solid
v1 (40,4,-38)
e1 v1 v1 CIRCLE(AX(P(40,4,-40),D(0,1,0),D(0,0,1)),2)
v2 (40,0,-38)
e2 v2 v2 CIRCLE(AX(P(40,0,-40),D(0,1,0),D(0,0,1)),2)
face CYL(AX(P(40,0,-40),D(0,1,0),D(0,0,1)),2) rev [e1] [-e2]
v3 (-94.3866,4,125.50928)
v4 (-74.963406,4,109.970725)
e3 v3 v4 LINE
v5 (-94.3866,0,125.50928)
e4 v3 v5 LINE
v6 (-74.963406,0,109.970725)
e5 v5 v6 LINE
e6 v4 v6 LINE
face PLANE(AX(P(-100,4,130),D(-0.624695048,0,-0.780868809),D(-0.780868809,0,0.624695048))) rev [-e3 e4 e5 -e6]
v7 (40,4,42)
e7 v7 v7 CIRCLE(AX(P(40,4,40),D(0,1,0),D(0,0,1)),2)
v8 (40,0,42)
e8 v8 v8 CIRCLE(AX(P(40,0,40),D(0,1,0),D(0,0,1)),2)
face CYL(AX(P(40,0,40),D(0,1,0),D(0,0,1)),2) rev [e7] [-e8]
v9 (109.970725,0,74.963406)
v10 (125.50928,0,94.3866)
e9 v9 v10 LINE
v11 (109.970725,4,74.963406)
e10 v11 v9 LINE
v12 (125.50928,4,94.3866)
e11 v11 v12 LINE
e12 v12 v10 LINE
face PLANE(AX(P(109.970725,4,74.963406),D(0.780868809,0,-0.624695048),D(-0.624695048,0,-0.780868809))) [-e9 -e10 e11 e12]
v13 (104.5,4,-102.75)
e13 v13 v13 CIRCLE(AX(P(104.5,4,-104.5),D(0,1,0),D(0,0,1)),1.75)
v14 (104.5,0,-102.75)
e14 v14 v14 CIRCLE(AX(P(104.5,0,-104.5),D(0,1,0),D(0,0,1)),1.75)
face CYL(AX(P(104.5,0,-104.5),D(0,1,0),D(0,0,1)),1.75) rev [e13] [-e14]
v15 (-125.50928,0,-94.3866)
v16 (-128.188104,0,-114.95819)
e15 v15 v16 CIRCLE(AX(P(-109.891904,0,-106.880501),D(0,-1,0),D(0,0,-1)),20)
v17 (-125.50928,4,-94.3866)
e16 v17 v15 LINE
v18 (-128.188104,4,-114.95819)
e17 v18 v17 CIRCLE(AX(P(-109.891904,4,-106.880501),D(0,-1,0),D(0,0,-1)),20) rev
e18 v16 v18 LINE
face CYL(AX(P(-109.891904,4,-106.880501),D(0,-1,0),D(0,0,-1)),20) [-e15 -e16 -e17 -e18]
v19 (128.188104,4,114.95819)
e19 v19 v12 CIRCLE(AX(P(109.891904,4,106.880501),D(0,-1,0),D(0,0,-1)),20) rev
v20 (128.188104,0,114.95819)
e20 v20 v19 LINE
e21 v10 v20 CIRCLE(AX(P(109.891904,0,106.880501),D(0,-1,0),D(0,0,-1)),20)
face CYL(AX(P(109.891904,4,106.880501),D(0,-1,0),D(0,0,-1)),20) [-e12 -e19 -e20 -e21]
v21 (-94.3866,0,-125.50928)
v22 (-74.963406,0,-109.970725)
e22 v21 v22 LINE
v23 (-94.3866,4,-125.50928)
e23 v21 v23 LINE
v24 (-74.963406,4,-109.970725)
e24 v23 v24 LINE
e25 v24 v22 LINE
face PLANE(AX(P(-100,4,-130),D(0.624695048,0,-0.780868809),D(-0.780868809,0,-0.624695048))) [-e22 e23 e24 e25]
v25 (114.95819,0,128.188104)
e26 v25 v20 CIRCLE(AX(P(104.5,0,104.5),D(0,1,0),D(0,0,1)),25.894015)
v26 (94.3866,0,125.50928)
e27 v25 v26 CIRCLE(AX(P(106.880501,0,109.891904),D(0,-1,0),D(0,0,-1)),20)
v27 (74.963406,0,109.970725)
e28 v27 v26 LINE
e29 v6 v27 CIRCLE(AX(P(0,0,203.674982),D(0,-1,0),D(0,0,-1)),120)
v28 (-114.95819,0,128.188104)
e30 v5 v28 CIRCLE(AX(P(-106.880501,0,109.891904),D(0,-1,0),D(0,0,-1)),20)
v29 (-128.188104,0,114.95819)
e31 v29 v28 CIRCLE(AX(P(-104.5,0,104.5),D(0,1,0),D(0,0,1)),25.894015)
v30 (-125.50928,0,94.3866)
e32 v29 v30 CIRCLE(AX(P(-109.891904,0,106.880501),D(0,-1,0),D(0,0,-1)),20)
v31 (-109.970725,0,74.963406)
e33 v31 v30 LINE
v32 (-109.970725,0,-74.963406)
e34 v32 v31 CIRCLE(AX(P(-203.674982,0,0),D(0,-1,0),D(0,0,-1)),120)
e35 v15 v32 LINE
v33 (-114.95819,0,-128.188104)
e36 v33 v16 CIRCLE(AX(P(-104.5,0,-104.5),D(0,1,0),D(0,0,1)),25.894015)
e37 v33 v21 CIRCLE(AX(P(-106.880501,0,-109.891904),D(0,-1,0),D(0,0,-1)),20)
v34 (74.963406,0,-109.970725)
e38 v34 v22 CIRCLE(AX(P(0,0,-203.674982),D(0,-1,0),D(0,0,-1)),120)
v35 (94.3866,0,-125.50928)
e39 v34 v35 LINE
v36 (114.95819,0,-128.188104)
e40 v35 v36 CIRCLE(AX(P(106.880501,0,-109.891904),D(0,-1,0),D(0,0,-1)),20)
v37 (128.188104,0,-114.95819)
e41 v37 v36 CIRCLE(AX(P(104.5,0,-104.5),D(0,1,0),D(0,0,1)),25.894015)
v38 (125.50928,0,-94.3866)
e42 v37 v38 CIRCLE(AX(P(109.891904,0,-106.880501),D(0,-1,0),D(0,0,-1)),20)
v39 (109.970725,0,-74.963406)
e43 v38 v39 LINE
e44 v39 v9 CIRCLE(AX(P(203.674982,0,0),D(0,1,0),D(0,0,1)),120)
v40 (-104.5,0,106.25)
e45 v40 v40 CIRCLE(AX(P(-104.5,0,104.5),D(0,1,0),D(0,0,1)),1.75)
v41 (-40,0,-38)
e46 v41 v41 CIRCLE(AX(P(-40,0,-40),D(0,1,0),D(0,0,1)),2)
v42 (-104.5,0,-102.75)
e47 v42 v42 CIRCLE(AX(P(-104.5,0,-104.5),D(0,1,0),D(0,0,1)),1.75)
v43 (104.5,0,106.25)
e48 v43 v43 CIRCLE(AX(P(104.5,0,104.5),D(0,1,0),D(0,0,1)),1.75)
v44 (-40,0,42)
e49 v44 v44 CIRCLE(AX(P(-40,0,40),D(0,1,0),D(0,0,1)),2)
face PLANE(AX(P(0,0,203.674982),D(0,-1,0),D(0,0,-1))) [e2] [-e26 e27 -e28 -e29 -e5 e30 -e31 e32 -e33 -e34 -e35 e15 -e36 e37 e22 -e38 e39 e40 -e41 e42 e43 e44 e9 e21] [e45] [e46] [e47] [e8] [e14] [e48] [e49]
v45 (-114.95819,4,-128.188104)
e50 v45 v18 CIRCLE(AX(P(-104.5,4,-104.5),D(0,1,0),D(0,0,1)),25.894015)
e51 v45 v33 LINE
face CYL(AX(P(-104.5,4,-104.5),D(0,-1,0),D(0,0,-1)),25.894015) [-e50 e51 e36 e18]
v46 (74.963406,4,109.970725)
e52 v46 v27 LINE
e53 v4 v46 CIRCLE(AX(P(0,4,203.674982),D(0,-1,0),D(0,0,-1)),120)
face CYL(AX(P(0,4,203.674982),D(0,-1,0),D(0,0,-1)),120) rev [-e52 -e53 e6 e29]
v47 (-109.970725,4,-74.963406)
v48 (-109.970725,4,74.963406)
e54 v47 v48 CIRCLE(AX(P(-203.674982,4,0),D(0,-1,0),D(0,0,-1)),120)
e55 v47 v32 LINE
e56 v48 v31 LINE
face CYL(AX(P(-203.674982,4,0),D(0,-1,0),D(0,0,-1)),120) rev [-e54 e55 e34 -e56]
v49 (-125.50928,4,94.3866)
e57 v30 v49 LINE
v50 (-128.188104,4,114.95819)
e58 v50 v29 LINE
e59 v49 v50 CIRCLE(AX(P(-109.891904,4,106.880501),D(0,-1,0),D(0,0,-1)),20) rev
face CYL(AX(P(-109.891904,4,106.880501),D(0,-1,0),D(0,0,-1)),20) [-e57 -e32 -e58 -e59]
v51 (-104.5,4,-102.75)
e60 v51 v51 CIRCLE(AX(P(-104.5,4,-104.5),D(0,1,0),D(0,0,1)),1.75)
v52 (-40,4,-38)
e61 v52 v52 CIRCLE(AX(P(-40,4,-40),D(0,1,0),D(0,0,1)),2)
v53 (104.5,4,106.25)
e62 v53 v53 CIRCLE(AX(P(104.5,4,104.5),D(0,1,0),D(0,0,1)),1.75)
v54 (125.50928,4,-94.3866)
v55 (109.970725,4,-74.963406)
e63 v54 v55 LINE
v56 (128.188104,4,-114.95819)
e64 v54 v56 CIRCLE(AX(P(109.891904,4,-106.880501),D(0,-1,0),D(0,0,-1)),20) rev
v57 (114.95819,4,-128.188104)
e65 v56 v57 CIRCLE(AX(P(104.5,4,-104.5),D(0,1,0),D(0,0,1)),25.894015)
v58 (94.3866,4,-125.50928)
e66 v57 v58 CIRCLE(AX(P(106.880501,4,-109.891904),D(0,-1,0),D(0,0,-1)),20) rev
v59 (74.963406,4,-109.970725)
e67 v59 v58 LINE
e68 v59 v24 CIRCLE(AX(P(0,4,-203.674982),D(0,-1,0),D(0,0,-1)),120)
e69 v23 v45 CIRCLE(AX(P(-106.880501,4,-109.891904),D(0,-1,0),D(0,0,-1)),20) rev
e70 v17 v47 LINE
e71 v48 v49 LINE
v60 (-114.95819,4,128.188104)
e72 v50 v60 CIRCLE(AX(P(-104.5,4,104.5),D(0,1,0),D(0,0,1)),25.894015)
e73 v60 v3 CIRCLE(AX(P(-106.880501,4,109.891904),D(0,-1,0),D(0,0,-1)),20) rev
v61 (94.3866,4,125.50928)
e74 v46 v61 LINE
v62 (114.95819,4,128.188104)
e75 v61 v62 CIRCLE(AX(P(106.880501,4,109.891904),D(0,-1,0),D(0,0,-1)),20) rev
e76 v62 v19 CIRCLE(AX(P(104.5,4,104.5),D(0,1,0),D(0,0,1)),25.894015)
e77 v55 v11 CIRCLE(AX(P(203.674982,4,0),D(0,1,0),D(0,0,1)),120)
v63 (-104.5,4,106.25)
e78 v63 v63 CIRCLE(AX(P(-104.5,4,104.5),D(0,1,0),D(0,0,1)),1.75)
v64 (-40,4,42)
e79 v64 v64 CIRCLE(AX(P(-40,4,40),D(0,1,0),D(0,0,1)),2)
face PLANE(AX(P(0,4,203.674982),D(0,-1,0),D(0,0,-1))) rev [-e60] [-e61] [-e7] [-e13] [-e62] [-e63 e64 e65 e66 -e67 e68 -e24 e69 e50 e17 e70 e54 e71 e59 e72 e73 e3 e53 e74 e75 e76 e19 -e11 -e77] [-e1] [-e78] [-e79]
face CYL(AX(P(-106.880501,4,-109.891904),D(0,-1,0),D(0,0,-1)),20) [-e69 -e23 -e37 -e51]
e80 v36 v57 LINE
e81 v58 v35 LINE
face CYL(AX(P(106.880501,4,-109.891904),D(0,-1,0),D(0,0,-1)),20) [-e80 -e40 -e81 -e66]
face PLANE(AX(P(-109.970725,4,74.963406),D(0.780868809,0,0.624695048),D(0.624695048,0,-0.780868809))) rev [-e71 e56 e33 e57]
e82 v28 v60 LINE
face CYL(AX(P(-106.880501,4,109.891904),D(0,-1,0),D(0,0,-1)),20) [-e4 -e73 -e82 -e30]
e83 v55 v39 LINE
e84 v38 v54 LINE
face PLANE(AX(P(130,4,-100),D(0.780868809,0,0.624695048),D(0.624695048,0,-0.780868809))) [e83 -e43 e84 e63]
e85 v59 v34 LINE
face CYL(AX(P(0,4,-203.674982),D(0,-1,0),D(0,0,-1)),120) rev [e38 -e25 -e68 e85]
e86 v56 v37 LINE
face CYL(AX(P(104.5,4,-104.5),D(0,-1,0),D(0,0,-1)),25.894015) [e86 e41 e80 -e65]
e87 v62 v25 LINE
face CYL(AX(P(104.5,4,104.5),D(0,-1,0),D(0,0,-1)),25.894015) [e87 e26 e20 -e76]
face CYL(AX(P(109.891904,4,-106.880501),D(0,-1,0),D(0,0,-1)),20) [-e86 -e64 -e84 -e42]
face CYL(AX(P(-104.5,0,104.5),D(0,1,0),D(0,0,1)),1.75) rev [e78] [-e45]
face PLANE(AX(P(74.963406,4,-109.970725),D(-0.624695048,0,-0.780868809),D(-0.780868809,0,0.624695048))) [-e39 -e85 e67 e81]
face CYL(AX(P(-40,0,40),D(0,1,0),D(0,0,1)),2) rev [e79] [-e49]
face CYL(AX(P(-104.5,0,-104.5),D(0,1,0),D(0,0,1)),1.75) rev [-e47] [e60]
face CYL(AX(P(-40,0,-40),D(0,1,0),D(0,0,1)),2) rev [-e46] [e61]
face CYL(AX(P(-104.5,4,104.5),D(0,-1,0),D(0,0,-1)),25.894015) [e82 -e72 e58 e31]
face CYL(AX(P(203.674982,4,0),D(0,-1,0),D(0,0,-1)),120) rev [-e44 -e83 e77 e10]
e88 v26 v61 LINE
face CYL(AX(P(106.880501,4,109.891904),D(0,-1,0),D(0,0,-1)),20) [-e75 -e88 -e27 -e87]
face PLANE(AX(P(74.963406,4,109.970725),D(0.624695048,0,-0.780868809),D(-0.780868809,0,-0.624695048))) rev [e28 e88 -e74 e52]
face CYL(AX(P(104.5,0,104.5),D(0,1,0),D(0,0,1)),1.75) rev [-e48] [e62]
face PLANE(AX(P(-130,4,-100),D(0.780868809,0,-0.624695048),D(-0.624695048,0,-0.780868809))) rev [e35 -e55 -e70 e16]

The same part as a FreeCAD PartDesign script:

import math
import FreeCAD as App
import Part
import Sketcher
from FreeCAD import Vector


def edges_at(feature, points):
    """Names of the edges that pass closest to the given points."""
    edges = feature.Shape.Edges
    near = lambda p: min(range(len(edges)), key=lambda i: edges[i].distToShape(Part.Vertex(*p))[0])
    return sorted({f"Edge{near(p) + 1}" for p in points})

doc = App.newDocument("Part")
body = doc.addObject("PartDesign::Body", "Body")

# Sketch on XZ plane
sketch1 = body.newObject("Sketcher::SketchObject", "Sketch")
sketch1.AttachmentSupport = (doc.getObject("XZ_Plane"), [""])
sketch1.MapMode = "FlatFace"
sketch1.addGeometry([
    Part.LineSegment(Vector(-75, -110, 0), Vector(-100, -130, 0)),  # 0
    Part.ArcOfCircle(Part.Circle(Vector(-105, -105, 0), Vector(0, 0, 1), 26), math.radians(170), math.radians(280)),  # 1
    Part.LineSegment(Vector(-130, -100, 0), Vector(-110, -75, 0)),  # 2
    Part.ArcOfCircle(Part.Circle(Vector(-204, 0, 0), Vector(0, 0, 1), 120), math.radians(-39), math.radians(39)),  # 3
    Part.LineSegment(Vector(-110, 75, 0), Vector(-130, 100, 0)),  # 4
    Part.ArcOfCircle(Part.Circle(Vector(-105, 105, 0), Vector(0, 0, 1), 26), math.radians(80), math.radians(190)),  # 5
    Part.LineSegment(Vector(-100, 130, 0), Vector(-75, 110, 0)),  # 6
    Part.ArcOfCircle(Part.Circle(Vector(0, 204, 0), Vector(0, 0, 1), 120), math.radians(-129), math.radians(-51)),  # 7
    Part.LineSegment(Vector(75, 110, 0), Vector(100, 130, 0)),  # 8
    Part.ArcOfCircle(Part.Circle(Vector(105, 105, 0), Vector(0, 0, 1), 26), math.radians(-10), math.radians(100)),  # 9
    Part.LineSegment(Vector(130, 100, 0), Vector(110, 75, 0)),  # 10
    Part.ArcOfCircle(Part.Circle(Vector(204, 0, 0), Vector(0, 0, 1), 120), math.radians(141), math.radians(219)),  # 11
    Part.LineSegment(Vector(110, -75, 0), Vector(130, -100, 0)),  # 12
    Part.ArcOfCircle(Part.Circle(Vector(105, -105, 0), Vector(0, 0, 1), 26), math.radians(-100), math.radians(10)),  # 13
    Part.LineSegment(Vector(100, -130, 0), Vector(75, -110, 0)),  # 14
    Part.ArcOfCircle(Part.Circle(Vector(0, -204, 0), Vector(0, 0, 1), 120), math.radians(51), math.radians(129)),  # 15
], False)
sketch1.addConstraint([
    Sketcher.Constraint("Coincident", 0, 2, 1, 2),
    Sketcher.Constraint("Coincident", 1, 1, 2, 1),
    Sketcher.Constraint("Tangent", 2, 2, 3, 1),
    Sketcher.Constraint("Tangent", 3, 2, 4, 1),
    Sketcher.Constraint("Coincident", 4, 2, 5, 2),
    Sketcher.Constraint("Coincident", 5, 1, 6, 1),
    Sketcher.Constraint("Tangent", 6, 2, 7, 1),
    Sketcher.Constraint("Tangent", 7, 2, 8, 1),
    Sketcher.Constraint("Coincident", 8, 2, 9, 2),
    Sketcher.Constraint("Coincident", 9, 1, 10, 1),
    Sketcher.Constraint("Tangent", 10, 2, 11, 1),
    Sketcher.Constraint("Tangent", 11, 2, 12, 1),
    Sketcher.Constraint("Coincident", 12, 2, 13, 2),
    Sketcher.Constraint("Coincident", 13, 1, 14, 1),
    Sketcher.Constraint("Tangent", 14, 2, 15, 1),
    Sketcher.Constraint("Tangent", 15, 2, 0, 1),
    Sketcher.Constraint("Equal", 1, 5),
    Sketcher.Constraint("Equal", 3, 7),
    Sketcher.Constraint("Equal", 5, 9),
    Sketcher.Constraint("Equal", 7, 11),
    Sketcher.Constraint("Equal", 9, 13),
    Sketcher.Constraint("Equal", 11, 15),
    Sketcher.Constraint("Symmetric", 1, 3, 9, 3, -1, 1),
    Sketcher.Constraint("Symmetric", 3, 3, 11, 3, -1, 1),
    Sketcher.Constraint("Symmetric", 5, 3, 13, 3, -1, 1),
    Sketcher.Constraint("Symmetric", 7, 3, 15, 3, -1, 1),
    Sketcher.Constraint("Symmetric", 5, 3, 9, 3, -2),
    Sketcher.Constraint("Symmetric", 6, 2, 7, 2, -2),
    Sketcher.Constraint("Symmetric", 3, 2, 10, 2, -2),
    Sketcher.Constraint("Perpendicular", 0, 4),
    Sketcher.Constraint("Perpendicular", 2, 6),
    Sketcher.Constraint("Perpendicular", 4, 8),
    Sketcher.Constraint("Perpendicular", 8, 12),
    Sketcher.Constraint("Perpendicular", 10, 14),
    Sketcher.Constraint("Equal", 0, 2),
    Sketcher.Constraint("Radius", 3, 120.0),
    Sketcher.Constraint("DistanceX", 0, 2, -1, 1, 100.0),
    Sketcher.Constraint("DistanceY", 0, 2, -1, 1, 130.0),
    Sketcher.Constraint("DistanceX", 1, 1, -1, 1, 130.0),
    Sketcher.Constraint("DistanceY", 1, 3, 5, 3, 209.0),
    Sketcher.Constraint("DistanceX", 3, 3, -1, 1, 203.674982),
])
pad1 = body.newObject("PartDesign::Pad", "Pad")
pad1.Profile = sketch1
pad1.Length = 4
pad1.Reversed = True
doc.recompute()

fillet = body.newObject("PartDesign::Fillet", "Fillet")
fillet.Base = (pad1, edges_at(pad1, [(130, 2, -100)]))
fillet.Radius = 20
doc.recompute()

fillet2 = body.newObject("PartDesign::Fillet", "Fillet001")
fillet2.Base = (fillet, edges_at(fillet, [(100, 2, -130)]))
fillet2.Radius = 20
doc.recompute()

fillet3 = body.newObject("PartDesign::Fillet", "Fillet002")
fillet3.Base = (fillet2, edges_at(fillet2, [(-100, 2, -130)]))
fillet3.Radius = 20
doc.recompute()

fillet4 = body.newObject("PartDesign::Fillet", "Fillet003")
fillet4.Base = (fillet3, edges_at(fillet3, [(-130, 2, -100)]))
fillet4.Radius = 20
doc.recompute()

fillet5 = body.newObject("PartDesign::Fillet", "Fillet004")
fillet5.Base = (fillet4, edges_at(fillet4, [(-100, 2, 130)]))
fillet5.Radius = 20
doc.recompute()

fillet6 = body.newObject("PartDesign::Fillet", "Fillet005")
fillet6.Base = (fillet5, edges_at(fillet5, [(-130, 2, 100)]))
fillet6.Radius = 20
doc.recompute()

fillet7 = body.newObject("PartDesign::Fillet", "Fillet006")
fillet7.Base = (fillet6, edges_at(fillet6, [(100, 2, 130)]))
fillet7.Radius = 20
doc.recompute()

fillet8 = body.newObject("PartDesign::Fillet", "Fillet007")
fillet8.Base = (fillet7, edges_at(fillet7, [(130, 2, 100)]))
fillet8.Radius = 20

# Sketch on XZ plane
sketch2 = body.newObject("Sketcher::SketchObject", "Sketch001")
sketch2.AttachmentSupport = (doc.getObject("XZ_Plane"), [""])
sketch2.MapMode = "FlatFace"
sketch2.AttachmentOffset = App.Placement(Vector(0, 0, -4), App.Rotation())
sketch2.addGeometry([
    Part.Circle(Vector(-104.5, -104.5, 0), Vector(0, 0, 1), 1.8),
    Part.Circle(Vector(104.5, -104.5, 0), Vector(0, 0, 1), 1.8),
    Part.Circle(Vector(104.5, 104.5, 0), Vector(0, 0, 1), 1.8),
    Part.Circle(Vector(-104.5, 104.5, 0), Vector(0, 0, 1), 1.8),
], False)
sketch2.addConstraint([
    Sketcher.Constraint("Equal", 0, 1),
    Sketcher.Constraint("Equal", 1, 2),
    Sketcher.Constraint("Equal", 2, 3),
    Sketcher.Constraint("Symmetric", 0, 3, 2, 3, -1, 1),
    Sketcher.Constraint("Symmetric", 1, 3, 3, 3, -1, 1),
    Sketcher.Constraint("Symmetric", 0, 3, 1, 3, -2),
    Sketcher.Constraint("Diameter", 0, 3.5),
    Sketcher.Constraint("DistanceX", 0, 3, 1, 3, 209.0),
    Sketcher.Constraint("DistanceY", 1, 3, 2, 3, 209.0),
])
pocket1 = body.newObject("PartDesign::Pocket", "Pocket")
pocket1.Profile = sketch2
pocket1.Length = 4
pocket1.Reversed = True

# Sketch on XZ plane
sketch3 = body.newObject("Sketcher::SketchObject", "Sketch002")
sketch3.AttachmentSupport = (doc.getObject("XZ_Plane"), [""])
sketch3.MapMode = "FlatFace"
sketch3.AttachmentOffset = App.Placement(Vector(0, 0, -4), App.Rotation())
sketch3.addGeometry([
    Part.Circle(Vector(-40, -40, 0), Vector(0, 0, 1), 2),
    Part.Circle(Vector(40, -40, 0), Vector(0, 0, 1), 2),
    Part.Circle(Vector(40, 40, 0), Vector(0, 0, 1), 2),
    Part.Circle(Vector(-40, 40, 0), Vector(0, 0, 1), 2),
], False)
sketch3.addConstraint([
    Sketcher.Constraint("Equal", 0, 1),
    Sketcher.Constraint("Equal", 1, 2),
    Sketcher.Constraint("Equal", 2, 3),
    Sketcher.Constraint("Symmetric", 0, 3, 2, 3, -1, 1),
    Sketcher.Constraint("Symmetric", 1, 3, 3, 3, -1, 1),
    Sketcher.Constraint("Symmetric", 0, 3, 1, 3, -2),
    Sketcher.Constraint("Diameter", 0, 4.0),
    Sketcher.Constraint("DistanceX", 0, 3, -1, 1, 40.0),
    Sketcher.Constraint("DistanceY", 0, 3, -1, 1, 40.0),
])
pocket2 = body.newObject("PartDesign::Pocket", "Pocket001")
pocket2.Profile = sketch3
pocket2.Length = 4
pocket2.Reversed = True

doc.recompute()
